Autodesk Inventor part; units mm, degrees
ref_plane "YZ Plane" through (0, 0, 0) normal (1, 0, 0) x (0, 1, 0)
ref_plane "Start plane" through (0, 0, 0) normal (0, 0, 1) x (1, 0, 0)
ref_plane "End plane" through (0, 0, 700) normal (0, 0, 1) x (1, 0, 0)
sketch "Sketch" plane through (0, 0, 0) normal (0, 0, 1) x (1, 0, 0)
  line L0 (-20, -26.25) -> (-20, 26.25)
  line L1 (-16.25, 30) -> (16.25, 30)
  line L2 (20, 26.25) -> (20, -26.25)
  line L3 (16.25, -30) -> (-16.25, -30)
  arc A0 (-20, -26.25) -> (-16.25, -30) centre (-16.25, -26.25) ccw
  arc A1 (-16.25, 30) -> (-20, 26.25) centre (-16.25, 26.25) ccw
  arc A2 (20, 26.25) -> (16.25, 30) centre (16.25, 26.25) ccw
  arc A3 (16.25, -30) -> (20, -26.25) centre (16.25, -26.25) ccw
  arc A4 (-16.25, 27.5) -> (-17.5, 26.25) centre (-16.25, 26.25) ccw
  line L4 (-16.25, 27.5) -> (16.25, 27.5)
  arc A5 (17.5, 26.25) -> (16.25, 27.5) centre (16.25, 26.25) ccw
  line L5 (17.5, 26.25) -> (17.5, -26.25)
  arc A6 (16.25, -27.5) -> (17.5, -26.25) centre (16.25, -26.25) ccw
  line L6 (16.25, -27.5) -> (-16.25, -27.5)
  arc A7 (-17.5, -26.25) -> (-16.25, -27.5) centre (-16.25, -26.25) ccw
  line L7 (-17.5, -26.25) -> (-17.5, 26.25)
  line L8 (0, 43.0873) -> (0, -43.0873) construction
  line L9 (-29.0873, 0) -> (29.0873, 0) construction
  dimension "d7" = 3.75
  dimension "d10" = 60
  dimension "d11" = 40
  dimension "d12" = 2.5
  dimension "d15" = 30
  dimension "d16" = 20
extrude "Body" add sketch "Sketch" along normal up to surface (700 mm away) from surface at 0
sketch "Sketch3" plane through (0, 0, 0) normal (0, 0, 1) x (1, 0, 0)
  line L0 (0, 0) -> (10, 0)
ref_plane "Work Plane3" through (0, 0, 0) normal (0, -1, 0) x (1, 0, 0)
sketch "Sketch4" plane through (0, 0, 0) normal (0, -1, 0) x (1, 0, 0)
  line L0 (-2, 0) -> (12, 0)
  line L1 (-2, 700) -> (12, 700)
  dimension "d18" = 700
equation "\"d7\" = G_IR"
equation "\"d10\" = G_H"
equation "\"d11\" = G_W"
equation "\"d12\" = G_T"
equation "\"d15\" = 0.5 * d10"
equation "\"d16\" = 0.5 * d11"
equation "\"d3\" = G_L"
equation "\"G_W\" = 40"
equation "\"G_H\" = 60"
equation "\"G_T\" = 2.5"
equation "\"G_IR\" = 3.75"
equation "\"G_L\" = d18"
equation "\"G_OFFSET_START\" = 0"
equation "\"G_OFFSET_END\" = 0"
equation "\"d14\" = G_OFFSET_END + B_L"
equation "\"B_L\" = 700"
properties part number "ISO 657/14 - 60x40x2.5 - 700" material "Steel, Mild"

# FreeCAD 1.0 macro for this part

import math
import FreeCAD as App
import Part
import Sketcher
Q = App.Units.Quantity

doc = App.newDocument("Part")
body = doc.addObject("PartDesign::Body", "Body")

# Sketch on XY plane
sketch1 = body.newObject("Sketcher::SketchObject", "Sketch")
sketch1.AttachmentSupport = (doc.getObject("XY_Plane"), [""])
sketch1.MapMode = "FlatFace"
sketch1.addGeometry([
    Part.LineSegment(App.Vector(-20, 26.2, 0), App.Vector(-20, -26.2, 0)),  # 0
    Part.ArcOfCircle(Part.Circle(App.Vector(-16.2, -26.2, 0), App.Vector(0, 0, 1), 3.8), math.radians(180), math.radians(270)),  # 1
    Part.LineSegment(App.Vector(-16.2, -30, 0), App.Vector(16.2, -30, 0)),  # 2
    Part.ArcOfCircle(Part.Circle(App.Vector(16.2, -26.2, 0), App.Vector(0, 0, 1), 3.8), math.radians(-90), math.radians(0)),  # 3
    Part.LineSegment(App.Vector(20, -26.2, 0), App.Vector(20, 26.2, 0)),  # 4
    Part.ArcOfCircle(Part.Circle(App.Vector(16.2, 26.2, 0), App.Vector(0, 0, 1), 3.8), math.radians(0), math.radians(90)),  # 5
    Part.LineSegment(App.Vector(16.2, 30, 0), App.Vector(-16.2, 30, 0)),  # 6
    Part.ArcOfCircle(Part.Circle(App.Vector(-16.2, 26.2, 0), App.Vector(0, 0, 1), 3.8), math.radians(90), math.radians(180)),  # 7
    Part.ArcOfCircle(Part.Circle(App.Vector(-16.2, 26.2, 0), App.Vector(0, 0, 1), 1.2), math.radians(90), math.radians(180)),  # 8
    Part.LineSegment(App.Vector(-16.2, 27.5, 0), App.Vector(16.2, 27.5, 0)),  # 9
    Part.ArcOfCircle(Part.Circle(App.Vector(16.2, 26.2, 0), App.Vector(0, 0, 1), 1.2), math.radians(0), math.radians(90)),  # 10
    Part.LineSegment(App.Vector(17.5, 26.2, 0), App.Vector(17.5, -26.2, 0)),  # 11
    Part.ArcOfCircle(Part.Circle(App.Vector(16.2, -26.2, 0), App.Vector(0, 0, 1), 1.2), math.radians(-90), math.radians(0)),  # 12
    Part.LineSegment(App.Vector(16.2, -27.5, 0), App.Vector(-16.2, -27.5, 0)),  # 13
    Part.ArcOfCircle(Part.Circle(App.Vector(-16.2, -26.2, 0), App.Vector(0, 0, 1), 1.2), math.radians(180), math.radians(270)),  # 14
    Part.LineSegment(App.Vector(-17.5, -26.2, 0), App.Vector(-17.5, 26.2, 0)),  # 15
], False)
sketch1.addConstraint([
    Sketcher.Constraint("Tangent", 0, 2, 1, 1),
    Sketcher.Constraint("Tangent", 1, 2, 2, 1),
    Sketcher.Constraint("Tangent", 2, 2, 3, 1),
    Sketcher.Constraint("Tangent", 3, 2, 4, 1),
    Sketcher.Constraint("Tangent", 4, 2, 5, 1),
    Sketcher.Constraint("Tangent", 5, 2, 6, 1),
    Sketcher.Constraint("Tangent", 6, 2, 7, 1),
    Sketcher.Constraint("Tangent", 7, 2, 0, 1),
    Sketcher.Constraint("Tangent", 8, 1, 9, 1),
    Sketcher.Constraint("Tangent", 9, 2, 10, 2),
    Sketcher.Constraint("Tangent", 10, 1, 11, 1),
    Sketcher.Constraint("Tangent", 11, 2, 12, 2),
    Sketcher.Constraint("Tangent", 12, 1, 13, 1),
    Sketcher.Constraint("Tangent", 13, 2, 14, 2),
    Sketcher.Constraint("Tangent", 14, 1, 15, 1),
    Sketcher.Constraint("Tangent", 15, 2, 8, 2),
    Sketcher.Constraint("Vertical", 0),
    Sketcher.Constraint("Horizontal", 2),
    Sketcher.Constraint("Vertical", 4),
    Sketcher.Constraint("Horizontal", 6),
    Sketcher.Constraint("Horizontal", 9),
    Sketcher.Constraint("Vertical", 11),
    Sketcher.Constraint("Horizontal", 13),
    Sketcher.Constraint("Vertical", 15),
    Sketcher.Constraint("Coincident", 8, 3, 7, 3),
    Sketcher.Constraint("Coincident", 10, 3, 5, 3),
    Sketcher.Constraint("Coincident", 12, 3, 3, 3),
    Sketcher.Constraint("Equal", 1, 3),
    Sketcher.Constraint("Equal", 3, 5),
    Sketcher.Constraint("Equal", 5, 7),
    Sketcher.Constraint("Equal", 12, 14),
    Sketcher.Constraint("Symmetric", 1, 3, 5, 3, -1, 1),
    Sketcher.Constraint("Radius", 1, Q("3.75 mm")),
    Sketcher.Constraint("Radius", 8, Q("1.25 mm")),
    Sketcher.Constraint("DistanceX", 0, 2, -1, 1, Q("20 mm")),
    Sketcher.Constraint("DistanceY", 1, 2, -1, 1, Q("30 mm")),
])
pad1 = body.newObject("PartDesign::Pad", "Pad")
pad1.Profile = sketch1
pad1.Length = 700

doc.recompute()
